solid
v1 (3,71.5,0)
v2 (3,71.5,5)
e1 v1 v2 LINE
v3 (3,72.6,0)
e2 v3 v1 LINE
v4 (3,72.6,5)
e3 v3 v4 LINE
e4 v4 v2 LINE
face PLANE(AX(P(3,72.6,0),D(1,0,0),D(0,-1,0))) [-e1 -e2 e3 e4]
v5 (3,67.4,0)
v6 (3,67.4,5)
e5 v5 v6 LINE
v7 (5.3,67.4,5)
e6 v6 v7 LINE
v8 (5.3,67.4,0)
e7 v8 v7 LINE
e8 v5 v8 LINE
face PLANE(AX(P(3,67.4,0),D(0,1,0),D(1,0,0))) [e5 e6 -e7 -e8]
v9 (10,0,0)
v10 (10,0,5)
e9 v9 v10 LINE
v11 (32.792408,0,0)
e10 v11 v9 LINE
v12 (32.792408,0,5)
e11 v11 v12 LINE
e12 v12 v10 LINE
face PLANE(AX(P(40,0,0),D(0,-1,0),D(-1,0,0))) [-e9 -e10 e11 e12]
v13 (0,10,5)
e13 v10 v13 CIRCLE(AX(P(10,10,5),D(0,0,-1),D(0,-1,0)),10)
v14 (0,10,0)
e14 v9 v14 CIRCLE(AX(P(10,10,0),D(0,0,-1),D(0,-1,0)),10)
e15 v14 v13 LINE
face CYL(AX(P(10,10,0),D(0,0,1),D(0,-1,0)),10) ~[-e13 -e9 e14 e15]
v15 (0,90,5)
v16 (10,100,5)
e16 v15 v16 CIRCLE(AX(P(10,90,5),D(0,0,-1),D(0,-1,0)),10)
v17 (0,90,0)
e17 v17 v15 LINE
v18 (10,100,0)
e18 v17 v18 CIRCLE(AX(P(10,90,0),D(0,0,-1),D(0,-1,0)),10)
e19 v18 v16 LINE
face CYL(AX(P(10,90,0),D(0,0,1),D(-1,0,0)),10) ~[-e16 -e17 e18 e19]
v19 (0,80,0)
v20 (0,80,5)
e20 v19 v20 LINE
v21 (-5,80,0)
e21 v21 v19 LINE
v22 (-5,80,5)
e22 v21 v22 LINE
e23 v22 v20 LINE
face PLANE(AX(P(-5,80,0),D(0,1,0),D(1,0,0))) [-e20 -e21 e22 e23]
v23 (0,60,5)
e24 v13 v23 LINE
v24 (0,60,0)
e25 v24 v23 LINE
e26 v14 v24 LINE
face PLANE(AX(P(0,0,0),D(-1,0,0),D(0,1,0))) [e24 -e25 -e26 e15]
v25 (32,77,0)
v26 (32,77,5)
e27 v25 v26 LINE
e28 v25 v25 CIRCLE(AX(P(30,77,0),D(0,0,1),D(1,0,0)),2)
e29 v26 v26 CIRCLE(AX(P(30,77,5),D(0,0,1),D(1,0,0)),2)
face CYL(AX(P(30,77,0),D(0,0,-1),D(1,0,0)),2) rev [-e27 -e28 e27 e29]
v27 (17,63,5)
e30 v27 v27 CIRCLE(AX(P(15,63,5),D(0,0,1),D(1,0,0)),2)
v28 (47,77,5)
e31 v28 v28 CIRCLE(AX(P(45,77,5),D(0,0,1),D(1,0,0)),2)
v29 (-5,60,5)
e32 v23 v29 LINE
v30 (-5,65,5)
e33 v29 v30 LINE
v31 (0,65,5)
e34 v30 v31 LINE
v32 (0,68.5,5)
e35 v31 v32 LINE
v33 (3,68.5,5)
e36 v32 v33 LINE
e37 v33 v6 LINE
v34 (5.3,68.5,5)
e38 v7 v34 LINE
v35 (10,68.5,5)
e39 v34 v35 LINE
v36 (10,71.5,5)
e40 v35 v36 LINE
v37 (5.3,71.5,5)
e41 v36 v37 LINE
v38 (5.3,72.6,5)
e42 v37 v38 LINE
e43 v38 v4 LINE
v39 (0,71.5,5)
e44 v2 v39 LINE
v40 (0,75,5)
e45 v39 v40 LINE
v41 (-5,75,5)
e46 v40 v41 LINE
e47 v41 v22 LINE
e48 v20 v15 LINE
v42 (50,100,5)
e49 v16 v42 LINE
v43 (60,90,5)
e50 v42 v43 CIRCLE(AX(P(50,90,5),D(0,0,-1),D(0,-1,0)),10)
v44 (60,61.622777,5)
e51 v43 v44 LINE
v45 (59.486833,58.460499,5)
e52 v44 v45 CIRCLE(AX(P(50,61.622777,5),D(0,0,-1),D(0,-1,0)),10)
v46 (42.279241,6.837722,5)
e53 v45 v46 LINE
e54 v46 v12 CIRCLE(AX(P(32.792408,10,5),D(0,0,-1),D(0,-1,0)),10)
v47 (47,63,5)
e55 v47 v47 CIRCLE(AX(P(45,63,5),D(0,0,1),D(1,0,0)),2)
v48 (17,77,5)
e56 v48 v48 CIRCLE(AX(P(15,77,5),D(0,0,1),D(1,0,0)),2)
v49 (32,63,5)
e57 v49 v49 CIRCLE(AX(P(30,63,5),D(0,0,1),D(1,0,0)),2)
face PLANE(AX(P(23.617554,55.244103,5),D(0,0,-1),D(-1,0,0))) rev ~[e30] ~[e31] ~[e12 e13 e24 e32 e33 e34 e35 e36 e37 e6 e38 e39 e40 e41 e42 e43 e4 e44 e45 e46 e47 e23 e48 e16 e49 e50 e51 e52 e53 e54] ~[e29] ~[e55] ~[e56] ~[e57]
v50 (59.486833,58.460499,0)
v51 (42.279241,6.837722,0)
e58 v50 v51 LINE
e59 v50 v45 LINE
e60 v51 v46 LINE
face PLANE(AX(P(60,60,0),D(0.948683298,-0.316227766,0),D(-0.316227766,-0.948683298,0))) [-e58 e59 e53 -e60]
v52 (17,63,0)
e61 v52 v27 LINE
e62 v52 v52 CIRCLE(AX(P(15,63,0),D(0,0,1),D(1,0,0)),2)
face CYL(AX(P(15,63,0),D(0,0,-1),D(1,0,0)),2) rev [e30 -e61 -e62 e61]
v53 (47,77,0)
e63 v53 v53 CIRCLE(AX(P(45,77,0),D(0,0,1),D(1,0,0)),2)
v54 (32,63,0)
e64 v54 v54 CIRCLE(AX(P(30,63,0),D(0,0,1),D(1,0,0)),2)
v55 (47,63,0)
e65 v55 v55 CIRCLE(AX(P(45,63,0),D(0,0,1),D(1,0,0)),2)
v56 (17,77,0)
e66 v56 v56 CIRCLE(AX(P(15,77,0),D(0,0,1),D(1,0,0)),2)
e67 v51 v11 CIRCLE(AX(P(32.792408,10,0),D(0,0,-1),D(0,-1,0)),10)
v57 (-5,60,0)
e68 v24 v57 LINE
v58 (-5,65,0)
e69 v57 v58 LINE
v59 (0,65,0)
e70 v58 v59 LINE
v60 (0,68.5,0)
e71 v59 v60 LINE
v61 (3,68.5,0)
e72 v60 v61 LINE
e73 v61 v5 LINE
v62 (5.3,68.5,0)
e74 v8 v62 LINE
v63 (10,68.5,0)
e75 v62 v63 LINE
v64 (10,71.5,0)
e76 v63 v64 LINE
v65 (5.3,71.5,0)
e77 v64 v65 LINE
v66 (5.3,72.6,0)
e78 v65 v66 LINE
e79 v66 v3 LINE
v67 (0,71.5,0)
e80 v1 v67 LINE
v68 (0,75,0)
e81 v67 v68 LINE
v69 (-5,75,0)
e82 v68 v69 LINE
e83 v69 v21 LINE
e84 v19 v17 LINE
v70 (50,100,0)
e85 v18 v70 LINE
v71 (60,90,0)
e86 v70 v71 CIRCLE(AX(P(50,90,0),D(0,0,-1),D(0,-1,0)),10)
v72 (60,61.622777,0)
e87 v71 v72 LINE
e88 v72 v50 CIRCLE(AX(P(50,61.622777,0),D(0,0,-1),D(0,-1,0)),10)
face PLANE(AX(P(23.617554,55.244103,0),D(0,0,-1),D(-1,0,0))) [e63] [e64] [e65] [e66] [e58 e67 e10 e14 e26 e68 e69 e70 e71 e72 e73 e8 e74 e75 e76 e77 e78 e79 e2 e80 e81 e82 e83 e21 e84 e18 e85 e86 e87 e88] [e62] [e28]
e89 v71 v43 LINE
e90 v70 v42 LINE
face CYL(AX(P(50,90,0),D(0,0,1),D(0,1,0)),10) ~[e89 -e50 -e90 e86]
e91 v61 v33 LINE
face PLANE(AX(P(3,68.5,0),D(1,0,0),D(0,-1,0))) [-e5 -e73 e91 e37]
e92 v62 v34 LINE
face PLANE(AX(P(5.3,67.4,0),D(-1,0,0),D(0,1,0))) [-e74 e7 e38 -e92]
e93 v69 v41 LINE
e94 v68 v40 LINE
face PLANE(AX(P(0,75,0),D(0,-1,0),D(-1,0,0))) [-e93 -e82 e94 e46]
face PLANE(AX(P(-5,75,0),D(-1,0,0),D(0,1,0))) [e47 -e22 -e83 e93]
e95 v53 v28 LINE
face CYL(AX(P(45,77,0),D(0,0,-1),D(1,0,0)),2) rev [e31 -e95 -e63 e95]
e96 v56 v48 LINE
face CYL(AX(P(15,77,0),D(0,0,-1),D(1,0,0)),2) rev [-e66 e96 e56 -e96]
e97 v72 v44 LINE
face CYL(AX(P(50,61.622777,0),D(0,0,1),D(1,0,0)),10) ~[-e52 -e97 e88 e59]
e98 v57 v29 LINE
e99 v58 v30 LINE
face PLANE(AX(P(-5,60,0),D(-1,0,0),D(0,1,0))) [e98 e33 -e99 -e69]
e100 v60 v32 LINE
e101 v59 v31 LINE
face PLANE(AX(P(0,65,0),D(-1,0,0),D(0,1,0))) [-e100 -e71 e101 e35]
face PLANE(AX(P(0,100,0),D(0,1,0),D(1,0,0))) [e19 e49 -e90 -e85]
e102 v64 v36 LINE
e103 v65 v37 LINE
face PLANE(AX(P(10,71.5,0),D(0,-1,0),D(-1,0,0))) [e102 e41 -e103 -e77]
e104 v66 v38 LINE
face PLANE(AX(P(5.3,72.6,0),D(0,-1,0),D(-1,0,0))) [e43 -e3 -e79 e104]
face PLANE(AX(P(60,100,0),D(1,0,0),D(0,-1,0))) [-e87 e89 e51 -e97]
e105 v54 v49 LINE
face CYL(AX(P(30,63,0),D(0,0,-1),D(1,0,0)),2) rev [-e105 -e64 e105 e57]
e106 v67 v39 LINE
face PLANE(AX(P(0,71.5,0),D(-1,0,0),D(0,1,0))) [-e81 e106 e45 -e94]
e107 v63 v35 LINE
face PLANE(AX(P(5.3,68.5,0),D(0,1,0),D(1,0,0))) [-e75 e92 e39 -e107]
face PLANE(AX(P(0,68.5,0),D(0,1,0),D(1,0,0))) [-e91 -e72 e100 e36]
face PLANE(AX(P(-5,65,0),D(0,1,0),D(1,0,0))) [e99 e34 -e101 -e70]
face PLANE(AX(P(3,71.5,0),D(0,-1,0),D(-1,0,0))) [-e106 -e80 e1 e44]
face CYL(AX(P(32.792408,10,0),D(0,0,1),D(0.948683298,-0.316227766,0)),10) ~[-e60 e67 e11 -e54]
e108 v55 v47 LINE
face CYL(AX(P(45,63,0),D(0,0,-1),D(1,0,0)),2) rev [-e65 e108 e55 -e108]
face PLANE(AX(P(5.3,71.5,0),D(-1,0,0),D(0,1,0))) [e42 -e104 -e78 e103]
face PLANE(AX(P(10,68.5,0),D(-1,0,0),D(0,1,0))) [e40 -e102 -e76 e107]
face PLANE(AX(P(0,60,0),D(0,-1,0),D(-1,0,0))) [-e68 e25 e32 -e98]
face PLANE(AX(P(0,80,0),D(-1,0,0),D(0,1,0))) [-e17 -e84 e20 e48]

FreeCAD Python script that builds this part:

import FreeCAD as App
import Part
import Sketcher
Q = App.Units.Quantity


def edges_at(feature, points):
    """Names of the edges that pass closest to the given points."""
    edges = feature.Shape.Edges
    near = lambda p: min(range(len(edges)), key=lambda i: edges[i].distToShape(Part.Vertex(*p))[0])
    return sorted({f"Edge{near(p) + 1}" for p in points})


def add_polygon(sketch, points):
    """Adds a closed chain of lines whose ends are joined by coincident constraints."""
    first, n = sketch.GeometryCount, len(points)
    for a, b in zip(points, points[1:] + points[:1]):
        sketch.addGeometry(Part.LineSegment(App.Vector(*a, 0), App.Vector(*b, 0)), False)
    for i in range(n):
        sketch.addConstraint(Sketcher.Constraint("Coincident", first + i, 2, first + (i + 1) % n, 1))

doc = App.newDocument("Part")
body = doc.addObject("PartDesign::Body", "Body")

sketch1 = body.newObject("Sketcher::SketchObject", "Sketch")
sketch1.AttachmentSupport = (doc.getObject("XY_Plane"), [""])
sketch1.MapMode = "FlatFace"
add_polygon(sketch1, [(0, 100), (0, 80), (-5, 80), (-5, 75), (0, 75), (0, 71.5), (3, 71.5), (3, 72.6), (5.3, 72.6), (5.3, 71.5), (10, 71.5), (10, 68.5), (5.3, 68.5), (5.3, 67.4), (3, 67.4), (3, 68.5), (0, 68.5), (0, 65), (-5, 65), (-5, 60), (0, 60), (0, 0), (40, 0), (60, 60), (60, 100)])
sketch1.addGeometry(Part.Circle(App.Vector(45, 63, 0), App.Vector(0, 0, 1), 2), False)
sketch1.addGeometry(Part.Circle(App.Vector(30, 63, 0), App.Vector(0, 0, 1), 2), False)
sketch1.addGeometry(Part.Circle(App.Vector(15, 63, 0), App.Vector(0, 0, 1), 2), False)
sketch1.addGeometry(Part.Circle(App.Vector(45, 77, 0), App.Vector(0, 0, 1), 2), False)
sketch1.addGeometry(Part.Circle(App.Vector(30, 77, 0), App.Vector(0, 0, 1), 2), False)
sketch1.addGeometry(Part.Circle(App.Vector(15, 77, 0), App.Vector(0, 0, 1), 2), False)
sketch1.addConstraint(Sketcher.Constraint("Vertical", 0))
sketch1.addConstraint(Sketcher.Constraint("Horizontal", 1))
sketch1.addConstraint(Sketcher.Constraint("Vertical", 2))
sketch1.addConstraint(Sketcher.Constraint("Horizontal", 3))
sketch1.addConstraint(Sketcher.Constraint("Vertical", 4))
sketch1.addConstraint(Sketcher.Constraint("Horizontal", 5))
sketch1.addConstraint(Sketcher.Constraint("Vertical", 6))
sketch1.addConstraint(Sketcher.Constraint("Horizontal", 7))
sketch1.addConstraint(Sketcher.Constraint("Vertical", 8))
sketch1.addConstraint(Sketcher.Constraint("Horizontal", 9))
sketch1.addConstraint(Sketcher.Constraint("Vertical", 10))
sketch1.addConstraint(Sketcher.Constraint("Horizontal", 11))
sketch1.addConstraint(Sketcher.Constraint("Vertical", 12))
sketch1.addConstraint(Sketcher.Constraint("Horizontal", 13))
sketch1.addConstraint(Sketcher.Constraint("Vertical", 14))
sketch1.addConstraint(Sketcher.Constraint("Horizontal", 15))
sketch1.addConstraint(Sketcher.Constraint("Vertical", 16))
sketch1.addConstraint(Sketcher.Constraint("Horizontal", 17))
sketch1.addConstraint(Sketcher.Constraint("Vertical", 18))
sketch1.addConstraint(Sketcher.Constraint("Horizontal", 19))
sketch1.addConstraint(Sketcher.Constraint("Vertical", 20))
sketch1.addConstraint(Sketcher.Constraint("Horizontal", 21))
sketch1.addConstraint(Sketcher.Constraint("Vertical", 23))
sketch1.addConstraint(Sketcher.Constraint("Horizontal", 24))
sketch1.addConstraint(Sketcher.Constraint("Coincident", 20, 2, -1, 1))
sketch1.addConstraint(Sketcher.Constraint("Equal", 25, 26))
sketch1.addConstraint(Sketcher.Constraint("Equal", 26, 27))
sketch1.addConstraint(Sketcher.Constraint("Equal", 27, 28))
sketch1.addConstraint(Sketcher.Constraint("Equal", 28, 29))
sketch1.addConstraint(Sketcher.Constraint("Equal", 29, 30))
sketch1.addConstraint(Sketcher.Constraint("PointOnObject", 0, 2, -2))
sketch1.addConstraint(Sketcher.Constraint("PointOnObject", 3, 2, -2))
sketch1.addConstraint(Sketcher.Constraint("PointOnObject", 15, 2, -2))
sketch1.addConstraint(Sketcher.Constraint("Horizontal", 25, 3, 26, 3))
sketch1.addConstraint(Sketcher.Constraint("Horizontal", 26, 3, 27, 3))
sketch1.addConstraint(Sketcher.Constraint("Horizontal", 28, 3, 29, 3))
sketch1.addConstraint(Sketcher.Constraint("Horizontal", 29, 3, 30, 3))
sketch1.addConstraint(Sketcher.Constraint("Horizontal", 5, 2, 8, 2))
sketch1.addConstraint(Sketcher.Constraint("Horizontal", 11, 2, 14, 2))
sketch1.addConstraint(Sketcher.Constraint("Horizontal", 19, 2, 22, 2))
sketch1.addConstraint(Sketcher.Constraint("Vertical", 25, 3, 28, 3))
sketch1.addConstraint(Sketcher.Constraint("Vertical", 26, 3, 29, 3))
sketch1.addConstraint(Sketcher.Constraint("Vertical", 27, 3, 30, 3))
sketch1.addConstraint(Sketcher.Constraint("Vertical", 8, 2, 11, 2))
sketch1.addConstraint(Sketcher.Constraint("Vertical", 6, 2, 13, 2))
sketch1.addConstraint(Sketcher.Constraint("Vertical", 2, 2, 17, 2))
sketch1.addConstraint(Sketcher.Constraint("Equal", 19, 2))
sketch1.addConstraint(Sketcher.Constraint("Equal", 15, 10))
sketch1.addConstraint(Sketcher.Constraint("Equal", 8, 12))
sketch1.addConstraint(Sketcher.Constraint("Equal", 4, 16))
sketch1.addConstraint(Sketcher.Constraint("Equal", 2, 18))
sketch1.addConstraint(Sketcher.Constraint("Equal", 24, 20))
sketch1.addConstraint(Sketcher.Constraint("Equal", 21, 23))
sketch1.addConstraint(Sketcher.Constraint("Diameter", 25, Q("4 mm")))
sketch1.addConstraint(Sketcher.Constraint("DistanceX", 1, 2, 1, 1, Q("5 mm")))
sketch1.addConstraint(Sketcher.Constraint("DistanceX", 5, 1, 5, 2, Q("3 mm")))
sketch1.addConstraint(Sketcher.Constraint("DistanceX", 21, 1, 21, 2, Q("40 mm")))
sketch1.addConstraint(Sketcher.Constraint("DistanceX", 24, 2, 24, 1, Q("60 mm")))
sketch1.addConstraint(Sketcher.Constraint("DistanceY", 0, 2, 0, 1, Q("20 mm")))
sketch1.addConstraint(Sketcher.Constraint("DistanceX", 7, 1, 7, 2, Q("2.3 mm")))
sketch1.addConstraint(Sketcher.Constraint("DistanceX", 9, 1, 9, 2, Q("4.7 mm")))
sketch1.addConstraint(Sketcher.Constraint("DistanceY", 6, 1, 6, 2, Q("1.1 mm")))
sketch1.addConstraint(Sketcher.Constraint("DistanceX", -1, 1, 25, 3, Q("45 mm")))
sketch1.addConstraint(Sketcher.Constraint("DistanceY", -1, 1, 25, 3, Q("63 mm")))
sketch1.addConstraint(Sketcher.Constraint("DistanceX", -1, 1, 26, 3, Q("30 mm")))
sketch1.addConstraint(Sketcher.Constraint("DistanceX", -1, 1, 27, 3, Q("15 mm")))
sketch1.addConstraint(Sketcher.Constraint("DistanceY", -1, 1, 28, 3, Q("77 mm")))
pad1 = body.newObject("PartDesign::Pad", "Pad")
pad1.Profile = sketch1
pad1.Length = 5
doc.recompute()

fillet = body.newObject("PartDesign::Fillet", "Fillet")
fillet.Base = (pad1, edges_at(pad1, [
    (0, 100, 2.5),
    (60, 100, 2.5),
    (60, 60, 2.5),
    (40, 0, 2.5),
    (0, 0, 2.5),
]))
fillet.Radius = 10

doc.recompute()
